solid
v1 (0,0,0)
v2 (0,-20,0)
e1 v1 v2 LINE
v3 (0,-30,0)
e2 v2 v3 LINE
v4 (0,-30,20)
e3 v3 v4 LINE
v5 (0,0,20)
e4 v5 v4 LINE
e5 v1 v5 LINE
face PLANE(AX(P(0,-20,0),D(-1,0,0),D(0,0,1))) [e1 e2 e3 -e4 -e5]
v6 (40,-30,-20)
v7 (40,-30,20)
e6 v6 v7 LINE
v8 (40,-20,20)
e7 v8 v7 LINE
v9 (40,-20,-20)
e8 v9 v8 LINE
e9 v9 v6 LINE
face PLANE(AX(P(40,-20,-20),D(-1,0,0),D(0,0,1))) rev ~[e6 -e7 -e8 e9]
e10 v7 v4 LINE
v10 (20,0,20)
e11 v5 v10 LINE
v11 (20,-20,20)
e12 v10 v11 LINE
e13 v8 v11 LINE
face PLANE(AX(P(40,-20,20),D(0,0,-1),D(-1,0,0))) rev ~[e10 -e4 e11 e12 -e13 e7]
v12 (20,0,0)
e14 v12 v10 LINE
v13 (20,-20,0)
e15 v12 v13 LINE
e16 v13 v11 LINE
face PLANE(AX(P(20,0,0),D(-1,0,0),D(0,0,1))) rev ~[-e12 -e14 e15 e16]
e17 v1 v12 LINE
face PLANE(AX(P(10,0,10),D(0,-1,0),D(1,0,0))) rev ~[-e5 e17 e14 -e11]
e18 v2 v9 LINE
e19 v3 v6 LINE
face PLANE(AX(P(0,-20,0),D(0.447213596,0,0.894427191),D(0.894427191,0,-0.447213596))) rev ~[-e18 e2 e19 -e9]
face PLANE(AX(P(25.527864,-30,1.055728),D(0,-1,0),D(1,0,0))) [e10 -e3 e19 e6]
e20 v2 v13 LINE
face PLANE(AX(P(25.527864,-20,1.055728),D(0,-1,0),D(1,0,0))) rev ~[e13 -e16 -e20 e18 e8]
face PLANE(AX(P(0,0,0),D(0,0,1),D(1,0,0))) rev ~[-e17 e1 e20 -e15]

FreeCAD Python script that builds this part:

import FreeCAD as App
import Part
import Sketcher
Q = App.Units.Quantity

doc = App.newDocument("Part")
body = doc.addObject("PartDesign::Body", "Body")

# Sketch on XZ plane
sketch1 = body.newObject("Sketcher::SketchObject", "Sketch")
sketch1.AttachmentSupport = (doc.getObject("XZ_Plane"), [""])
sketch1.MapMode = "FlatFace"
sketch1.addGeometry([
    Part.LineSegment(App.Vector(0, 20, 0), App.Vector(0, 0, 0)),
    Part.LineSegment(App.Vector(0, 0, 0), App.Vector(20, 0, 0)),
    Part.LineSegment(App.Vector(20, 0, 0), App.Vector(20, 20, 0)),
    Part.LineSegment(App.Vector(20, 20, 0), App.Vector(0, 20, 0)),
], False)
sketch1.addConstraint([
    Sketcher.Constraint("Coincident", 0, 2, 1, 1),
    Sketcher.Constraint("Coincident", 1, 2, 2, 1),
    Sketcher.Constraint("Coincident", 2, 2, 3, 1),
    Sketcher.Constraint("Coincident", 3, 2, 0, 1),
    Sketcher.Constraint("Vertical", 0),
    Sketcher.Constraint("Horizontal", 1),
    Sketcher.Constraint("Vertical", 2),
    Sketcher.Constraint("Horizontal", 3),
    Sketcher.Constraint("Coincident", 0, 2, -1, 1),
    Sketcher.Constraint("Equal", 3, 0),
    Sketcher.Constraint("DistanceX", 1, 1, 1, 2, Q("20 mm")),
])
pad1 = body.newObject("PartDesign::Pad", "Pad")
pad1.Profile = sketch1
pad1.Length = 20

# Sketch on XZ plane
sketch2 = body.newObject("Sketcher::SketchObject", "Sketch001")
sketch2.AttachmentSupport = (doc.getObject("XZ_Plane"), [""])
sketch2.MapMode = "FlatFace"
sketch2.AttachmentOffset = App.Placement(App.Vector(0, 0, 20), App.Rotation())
sketch2.addGeometry([
    Part.LineSegment(App.Vector(40, 20, 0), App.Vector(0, 20, 0)),
    Part.LineSegment(App.Vector(0, 20, 0), App.Vector(0, 0, 0)),
    Part.LineSegment(App.Vector(0, 0, 0), App.Vector(40, -20, 0)),
    Part.LineSegment(App.Vector(40, -20, 0), App.Vector(40, 20, 0)),
], False)
sketch2.addConstraint([
    Sketcher.Constraint("Coincident", 0, 2, 1, 1),
    Sketcher.Constraint("Coincident", 1, 2, 2, 1),
    Sketcher.Constraint("Coincident", 2, 2, 3, 1),
    Sketcher.Constraint("Coincident", 3, 2, 0, 1),
    Sketcher.Constraint("Horizontal", 0),
    Sketcher.Constraint("Vertical", 1),
    Sketcher.Constraint("Vertical", 3),
    Sketcher.Constraint("Coincident", 1, 2, -1, 1),
    Sketcher.Constraint("Equal", 0, 3),
    Sketcher.Constraint("DistanceX", 0, 2, 0, 1, Q("40 mm")),
    Sketcher.Constraint("DistanceY", 1, 2, 1, 1, Q("20 mm")),
])
pad2 = body.newObject("PartDesign::Pad", "Pad001")
pad2.Profile = sketch2
pad2.Length = 10

doc.recompute()
